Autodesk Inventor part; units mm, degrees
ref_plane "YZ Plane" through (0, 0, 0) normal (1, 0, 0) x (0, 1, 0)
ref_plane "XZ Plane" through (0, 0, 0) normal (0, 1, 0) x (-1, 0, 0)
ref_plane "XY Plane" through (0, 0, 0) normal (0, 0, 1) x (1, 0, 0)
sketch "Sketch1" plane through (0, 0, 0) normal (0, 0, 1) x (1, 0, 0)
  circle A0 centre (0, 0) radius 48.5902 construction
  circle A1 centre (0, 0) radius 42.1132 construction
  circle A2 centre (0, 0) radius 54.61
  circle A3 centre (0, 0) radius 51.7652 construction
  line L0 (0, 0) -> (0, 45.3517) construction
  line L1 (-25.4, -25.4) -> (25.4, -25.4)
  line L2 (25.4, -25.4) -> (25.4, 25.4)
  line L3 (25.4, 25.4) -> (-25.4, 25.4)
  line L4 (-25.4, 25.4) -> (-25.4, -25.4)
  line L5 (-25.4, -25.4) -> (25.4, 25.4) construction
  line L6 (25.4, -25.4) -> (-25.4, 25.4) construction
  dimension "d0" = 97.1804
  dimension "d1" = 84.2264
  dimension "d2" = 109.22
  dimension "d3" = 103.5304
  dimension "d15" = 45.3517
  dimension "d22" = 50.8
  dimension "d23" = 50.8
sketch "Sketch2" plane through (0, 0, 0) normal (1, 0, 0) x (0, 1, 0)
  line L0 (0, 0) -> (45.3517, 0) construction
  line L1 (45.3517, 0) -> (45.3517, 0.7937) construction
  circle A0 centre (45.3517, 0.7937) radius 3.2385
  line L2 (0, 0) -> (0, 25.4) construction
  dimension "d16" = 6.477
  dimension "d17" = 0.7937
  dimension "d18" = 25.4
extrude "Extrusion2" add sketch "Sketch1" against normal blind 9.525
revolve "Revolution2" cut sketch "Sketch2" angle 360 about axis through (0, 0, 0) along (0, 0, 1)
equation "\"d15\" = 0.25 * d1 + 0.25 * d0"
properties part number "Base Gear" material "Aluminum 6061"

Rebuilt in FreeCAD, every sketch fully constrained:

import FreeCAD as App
import Part
import Sketcher
from FreeCAD import Vector
Q = App.Units.Quantity


def add_polygon(sketch, points):
    """Adds a closed chain of lines whose ends are joined by coincident constraints."""
    first, n = sketch.GeometryCount, len(points)
    for a, b in zip(points, points[1:] + points[:1]):
        sketch.addGeometry(Part.LineSegment(App.Vector(*a, 0), App.Vector(*b, 0)), False)
    for i in range(n):
        sketch.addConstraint(Sketcher.Constraint("Coincident", first + i, 2, first + (i + 1) % n, 1))

doc = App.newDocument("Part")
body = doc.addObject("PartDesign::Body", "Body")

# Sketch on XY plane
sketch1 = body.newObject("Sketcher::SketchObject", "Sketch")
sketch1.AttachmentSupport = (doc.getObject("XY_Plane"), [""])
sketch1.MapMode = "FlatFace"
sketch1.addGeometry(Part.Circle(Vector(0, 0, 0), Vector(0, 0, 1), 54.61), False)  # 0
add_polygon(sketch1, [(25.4, -25.4), (-25.4, -25.4), (-25.4, 25.4), (25.4, 25.4)])  # lines 1-4
sketch1.addConstraint(Sketcher.Constraint("Horizontal", 1))
sketch1.addConstraint(Sketcher.Constraint("Vertical", 2))
sketch1.addConstraint(Sketcher.Constraint("Horizontal", 3))
sketch1.addConstraint(Sketcher.Constraint("Vertical", 4))
sketch1.addConstraint(Sketcher.Constraint("Coincident", 0, 3, -1, 1))
sketch1.addConstraint(Sketcher.Constraint("Symmetric", 1, 2, 3, 2, -1, 1))
sketch1.addConstraint(Sketcher.Constraint("Equal", 3, 2))
sketch1.addConstraint(Sketcher.Constraint("Diameter", 0, Q("4.3 in")))
sketch1.addConstraint(Sketcher.Constraint("DistanceX", 1, 2, 1, 1, Q("2 in")))
pad1 = body.newObject("PartDesign::Pad", "Pad")
pad1.Profile = sketch1
pad1.Length = Q("0.375 in")
pad1.Reversed = True

# Sketch on YZ plane
sketch2 = body.newObject("Sketcher::SketchObject", "Sketch001")
sketch2.AttachmentSupport = (doc.getObject("YZ_Plane"), [""])
sketch2.MapMode = "FlatFace"
sketch2.addGeometry(Part.Circle(Vector(45.3517, 0.7937, 0), Vector(0, 0, 1), 3.2385), False)
sketch2.addConstraint(Sketcher.Constraint("Diameter", 0, Q("0.255 in")))
sketch2.addConstraint(Sketcher.Constraint("DistanceY", -1, 1, 0, 3, Q("0.031248 in")))
sketch2.addConstraint(Sketcher.Constraint("DistanceX", -1, 1, 0, 3, Q("1.7855 in")))
groove = body.newObject("PartDesign::Groove", "Groove")
groove.Profile = sketch2
groove.ReferenceAxis = (sketch2, ["V_Axis"])
groove.Angle = 360

doc.recompute()
